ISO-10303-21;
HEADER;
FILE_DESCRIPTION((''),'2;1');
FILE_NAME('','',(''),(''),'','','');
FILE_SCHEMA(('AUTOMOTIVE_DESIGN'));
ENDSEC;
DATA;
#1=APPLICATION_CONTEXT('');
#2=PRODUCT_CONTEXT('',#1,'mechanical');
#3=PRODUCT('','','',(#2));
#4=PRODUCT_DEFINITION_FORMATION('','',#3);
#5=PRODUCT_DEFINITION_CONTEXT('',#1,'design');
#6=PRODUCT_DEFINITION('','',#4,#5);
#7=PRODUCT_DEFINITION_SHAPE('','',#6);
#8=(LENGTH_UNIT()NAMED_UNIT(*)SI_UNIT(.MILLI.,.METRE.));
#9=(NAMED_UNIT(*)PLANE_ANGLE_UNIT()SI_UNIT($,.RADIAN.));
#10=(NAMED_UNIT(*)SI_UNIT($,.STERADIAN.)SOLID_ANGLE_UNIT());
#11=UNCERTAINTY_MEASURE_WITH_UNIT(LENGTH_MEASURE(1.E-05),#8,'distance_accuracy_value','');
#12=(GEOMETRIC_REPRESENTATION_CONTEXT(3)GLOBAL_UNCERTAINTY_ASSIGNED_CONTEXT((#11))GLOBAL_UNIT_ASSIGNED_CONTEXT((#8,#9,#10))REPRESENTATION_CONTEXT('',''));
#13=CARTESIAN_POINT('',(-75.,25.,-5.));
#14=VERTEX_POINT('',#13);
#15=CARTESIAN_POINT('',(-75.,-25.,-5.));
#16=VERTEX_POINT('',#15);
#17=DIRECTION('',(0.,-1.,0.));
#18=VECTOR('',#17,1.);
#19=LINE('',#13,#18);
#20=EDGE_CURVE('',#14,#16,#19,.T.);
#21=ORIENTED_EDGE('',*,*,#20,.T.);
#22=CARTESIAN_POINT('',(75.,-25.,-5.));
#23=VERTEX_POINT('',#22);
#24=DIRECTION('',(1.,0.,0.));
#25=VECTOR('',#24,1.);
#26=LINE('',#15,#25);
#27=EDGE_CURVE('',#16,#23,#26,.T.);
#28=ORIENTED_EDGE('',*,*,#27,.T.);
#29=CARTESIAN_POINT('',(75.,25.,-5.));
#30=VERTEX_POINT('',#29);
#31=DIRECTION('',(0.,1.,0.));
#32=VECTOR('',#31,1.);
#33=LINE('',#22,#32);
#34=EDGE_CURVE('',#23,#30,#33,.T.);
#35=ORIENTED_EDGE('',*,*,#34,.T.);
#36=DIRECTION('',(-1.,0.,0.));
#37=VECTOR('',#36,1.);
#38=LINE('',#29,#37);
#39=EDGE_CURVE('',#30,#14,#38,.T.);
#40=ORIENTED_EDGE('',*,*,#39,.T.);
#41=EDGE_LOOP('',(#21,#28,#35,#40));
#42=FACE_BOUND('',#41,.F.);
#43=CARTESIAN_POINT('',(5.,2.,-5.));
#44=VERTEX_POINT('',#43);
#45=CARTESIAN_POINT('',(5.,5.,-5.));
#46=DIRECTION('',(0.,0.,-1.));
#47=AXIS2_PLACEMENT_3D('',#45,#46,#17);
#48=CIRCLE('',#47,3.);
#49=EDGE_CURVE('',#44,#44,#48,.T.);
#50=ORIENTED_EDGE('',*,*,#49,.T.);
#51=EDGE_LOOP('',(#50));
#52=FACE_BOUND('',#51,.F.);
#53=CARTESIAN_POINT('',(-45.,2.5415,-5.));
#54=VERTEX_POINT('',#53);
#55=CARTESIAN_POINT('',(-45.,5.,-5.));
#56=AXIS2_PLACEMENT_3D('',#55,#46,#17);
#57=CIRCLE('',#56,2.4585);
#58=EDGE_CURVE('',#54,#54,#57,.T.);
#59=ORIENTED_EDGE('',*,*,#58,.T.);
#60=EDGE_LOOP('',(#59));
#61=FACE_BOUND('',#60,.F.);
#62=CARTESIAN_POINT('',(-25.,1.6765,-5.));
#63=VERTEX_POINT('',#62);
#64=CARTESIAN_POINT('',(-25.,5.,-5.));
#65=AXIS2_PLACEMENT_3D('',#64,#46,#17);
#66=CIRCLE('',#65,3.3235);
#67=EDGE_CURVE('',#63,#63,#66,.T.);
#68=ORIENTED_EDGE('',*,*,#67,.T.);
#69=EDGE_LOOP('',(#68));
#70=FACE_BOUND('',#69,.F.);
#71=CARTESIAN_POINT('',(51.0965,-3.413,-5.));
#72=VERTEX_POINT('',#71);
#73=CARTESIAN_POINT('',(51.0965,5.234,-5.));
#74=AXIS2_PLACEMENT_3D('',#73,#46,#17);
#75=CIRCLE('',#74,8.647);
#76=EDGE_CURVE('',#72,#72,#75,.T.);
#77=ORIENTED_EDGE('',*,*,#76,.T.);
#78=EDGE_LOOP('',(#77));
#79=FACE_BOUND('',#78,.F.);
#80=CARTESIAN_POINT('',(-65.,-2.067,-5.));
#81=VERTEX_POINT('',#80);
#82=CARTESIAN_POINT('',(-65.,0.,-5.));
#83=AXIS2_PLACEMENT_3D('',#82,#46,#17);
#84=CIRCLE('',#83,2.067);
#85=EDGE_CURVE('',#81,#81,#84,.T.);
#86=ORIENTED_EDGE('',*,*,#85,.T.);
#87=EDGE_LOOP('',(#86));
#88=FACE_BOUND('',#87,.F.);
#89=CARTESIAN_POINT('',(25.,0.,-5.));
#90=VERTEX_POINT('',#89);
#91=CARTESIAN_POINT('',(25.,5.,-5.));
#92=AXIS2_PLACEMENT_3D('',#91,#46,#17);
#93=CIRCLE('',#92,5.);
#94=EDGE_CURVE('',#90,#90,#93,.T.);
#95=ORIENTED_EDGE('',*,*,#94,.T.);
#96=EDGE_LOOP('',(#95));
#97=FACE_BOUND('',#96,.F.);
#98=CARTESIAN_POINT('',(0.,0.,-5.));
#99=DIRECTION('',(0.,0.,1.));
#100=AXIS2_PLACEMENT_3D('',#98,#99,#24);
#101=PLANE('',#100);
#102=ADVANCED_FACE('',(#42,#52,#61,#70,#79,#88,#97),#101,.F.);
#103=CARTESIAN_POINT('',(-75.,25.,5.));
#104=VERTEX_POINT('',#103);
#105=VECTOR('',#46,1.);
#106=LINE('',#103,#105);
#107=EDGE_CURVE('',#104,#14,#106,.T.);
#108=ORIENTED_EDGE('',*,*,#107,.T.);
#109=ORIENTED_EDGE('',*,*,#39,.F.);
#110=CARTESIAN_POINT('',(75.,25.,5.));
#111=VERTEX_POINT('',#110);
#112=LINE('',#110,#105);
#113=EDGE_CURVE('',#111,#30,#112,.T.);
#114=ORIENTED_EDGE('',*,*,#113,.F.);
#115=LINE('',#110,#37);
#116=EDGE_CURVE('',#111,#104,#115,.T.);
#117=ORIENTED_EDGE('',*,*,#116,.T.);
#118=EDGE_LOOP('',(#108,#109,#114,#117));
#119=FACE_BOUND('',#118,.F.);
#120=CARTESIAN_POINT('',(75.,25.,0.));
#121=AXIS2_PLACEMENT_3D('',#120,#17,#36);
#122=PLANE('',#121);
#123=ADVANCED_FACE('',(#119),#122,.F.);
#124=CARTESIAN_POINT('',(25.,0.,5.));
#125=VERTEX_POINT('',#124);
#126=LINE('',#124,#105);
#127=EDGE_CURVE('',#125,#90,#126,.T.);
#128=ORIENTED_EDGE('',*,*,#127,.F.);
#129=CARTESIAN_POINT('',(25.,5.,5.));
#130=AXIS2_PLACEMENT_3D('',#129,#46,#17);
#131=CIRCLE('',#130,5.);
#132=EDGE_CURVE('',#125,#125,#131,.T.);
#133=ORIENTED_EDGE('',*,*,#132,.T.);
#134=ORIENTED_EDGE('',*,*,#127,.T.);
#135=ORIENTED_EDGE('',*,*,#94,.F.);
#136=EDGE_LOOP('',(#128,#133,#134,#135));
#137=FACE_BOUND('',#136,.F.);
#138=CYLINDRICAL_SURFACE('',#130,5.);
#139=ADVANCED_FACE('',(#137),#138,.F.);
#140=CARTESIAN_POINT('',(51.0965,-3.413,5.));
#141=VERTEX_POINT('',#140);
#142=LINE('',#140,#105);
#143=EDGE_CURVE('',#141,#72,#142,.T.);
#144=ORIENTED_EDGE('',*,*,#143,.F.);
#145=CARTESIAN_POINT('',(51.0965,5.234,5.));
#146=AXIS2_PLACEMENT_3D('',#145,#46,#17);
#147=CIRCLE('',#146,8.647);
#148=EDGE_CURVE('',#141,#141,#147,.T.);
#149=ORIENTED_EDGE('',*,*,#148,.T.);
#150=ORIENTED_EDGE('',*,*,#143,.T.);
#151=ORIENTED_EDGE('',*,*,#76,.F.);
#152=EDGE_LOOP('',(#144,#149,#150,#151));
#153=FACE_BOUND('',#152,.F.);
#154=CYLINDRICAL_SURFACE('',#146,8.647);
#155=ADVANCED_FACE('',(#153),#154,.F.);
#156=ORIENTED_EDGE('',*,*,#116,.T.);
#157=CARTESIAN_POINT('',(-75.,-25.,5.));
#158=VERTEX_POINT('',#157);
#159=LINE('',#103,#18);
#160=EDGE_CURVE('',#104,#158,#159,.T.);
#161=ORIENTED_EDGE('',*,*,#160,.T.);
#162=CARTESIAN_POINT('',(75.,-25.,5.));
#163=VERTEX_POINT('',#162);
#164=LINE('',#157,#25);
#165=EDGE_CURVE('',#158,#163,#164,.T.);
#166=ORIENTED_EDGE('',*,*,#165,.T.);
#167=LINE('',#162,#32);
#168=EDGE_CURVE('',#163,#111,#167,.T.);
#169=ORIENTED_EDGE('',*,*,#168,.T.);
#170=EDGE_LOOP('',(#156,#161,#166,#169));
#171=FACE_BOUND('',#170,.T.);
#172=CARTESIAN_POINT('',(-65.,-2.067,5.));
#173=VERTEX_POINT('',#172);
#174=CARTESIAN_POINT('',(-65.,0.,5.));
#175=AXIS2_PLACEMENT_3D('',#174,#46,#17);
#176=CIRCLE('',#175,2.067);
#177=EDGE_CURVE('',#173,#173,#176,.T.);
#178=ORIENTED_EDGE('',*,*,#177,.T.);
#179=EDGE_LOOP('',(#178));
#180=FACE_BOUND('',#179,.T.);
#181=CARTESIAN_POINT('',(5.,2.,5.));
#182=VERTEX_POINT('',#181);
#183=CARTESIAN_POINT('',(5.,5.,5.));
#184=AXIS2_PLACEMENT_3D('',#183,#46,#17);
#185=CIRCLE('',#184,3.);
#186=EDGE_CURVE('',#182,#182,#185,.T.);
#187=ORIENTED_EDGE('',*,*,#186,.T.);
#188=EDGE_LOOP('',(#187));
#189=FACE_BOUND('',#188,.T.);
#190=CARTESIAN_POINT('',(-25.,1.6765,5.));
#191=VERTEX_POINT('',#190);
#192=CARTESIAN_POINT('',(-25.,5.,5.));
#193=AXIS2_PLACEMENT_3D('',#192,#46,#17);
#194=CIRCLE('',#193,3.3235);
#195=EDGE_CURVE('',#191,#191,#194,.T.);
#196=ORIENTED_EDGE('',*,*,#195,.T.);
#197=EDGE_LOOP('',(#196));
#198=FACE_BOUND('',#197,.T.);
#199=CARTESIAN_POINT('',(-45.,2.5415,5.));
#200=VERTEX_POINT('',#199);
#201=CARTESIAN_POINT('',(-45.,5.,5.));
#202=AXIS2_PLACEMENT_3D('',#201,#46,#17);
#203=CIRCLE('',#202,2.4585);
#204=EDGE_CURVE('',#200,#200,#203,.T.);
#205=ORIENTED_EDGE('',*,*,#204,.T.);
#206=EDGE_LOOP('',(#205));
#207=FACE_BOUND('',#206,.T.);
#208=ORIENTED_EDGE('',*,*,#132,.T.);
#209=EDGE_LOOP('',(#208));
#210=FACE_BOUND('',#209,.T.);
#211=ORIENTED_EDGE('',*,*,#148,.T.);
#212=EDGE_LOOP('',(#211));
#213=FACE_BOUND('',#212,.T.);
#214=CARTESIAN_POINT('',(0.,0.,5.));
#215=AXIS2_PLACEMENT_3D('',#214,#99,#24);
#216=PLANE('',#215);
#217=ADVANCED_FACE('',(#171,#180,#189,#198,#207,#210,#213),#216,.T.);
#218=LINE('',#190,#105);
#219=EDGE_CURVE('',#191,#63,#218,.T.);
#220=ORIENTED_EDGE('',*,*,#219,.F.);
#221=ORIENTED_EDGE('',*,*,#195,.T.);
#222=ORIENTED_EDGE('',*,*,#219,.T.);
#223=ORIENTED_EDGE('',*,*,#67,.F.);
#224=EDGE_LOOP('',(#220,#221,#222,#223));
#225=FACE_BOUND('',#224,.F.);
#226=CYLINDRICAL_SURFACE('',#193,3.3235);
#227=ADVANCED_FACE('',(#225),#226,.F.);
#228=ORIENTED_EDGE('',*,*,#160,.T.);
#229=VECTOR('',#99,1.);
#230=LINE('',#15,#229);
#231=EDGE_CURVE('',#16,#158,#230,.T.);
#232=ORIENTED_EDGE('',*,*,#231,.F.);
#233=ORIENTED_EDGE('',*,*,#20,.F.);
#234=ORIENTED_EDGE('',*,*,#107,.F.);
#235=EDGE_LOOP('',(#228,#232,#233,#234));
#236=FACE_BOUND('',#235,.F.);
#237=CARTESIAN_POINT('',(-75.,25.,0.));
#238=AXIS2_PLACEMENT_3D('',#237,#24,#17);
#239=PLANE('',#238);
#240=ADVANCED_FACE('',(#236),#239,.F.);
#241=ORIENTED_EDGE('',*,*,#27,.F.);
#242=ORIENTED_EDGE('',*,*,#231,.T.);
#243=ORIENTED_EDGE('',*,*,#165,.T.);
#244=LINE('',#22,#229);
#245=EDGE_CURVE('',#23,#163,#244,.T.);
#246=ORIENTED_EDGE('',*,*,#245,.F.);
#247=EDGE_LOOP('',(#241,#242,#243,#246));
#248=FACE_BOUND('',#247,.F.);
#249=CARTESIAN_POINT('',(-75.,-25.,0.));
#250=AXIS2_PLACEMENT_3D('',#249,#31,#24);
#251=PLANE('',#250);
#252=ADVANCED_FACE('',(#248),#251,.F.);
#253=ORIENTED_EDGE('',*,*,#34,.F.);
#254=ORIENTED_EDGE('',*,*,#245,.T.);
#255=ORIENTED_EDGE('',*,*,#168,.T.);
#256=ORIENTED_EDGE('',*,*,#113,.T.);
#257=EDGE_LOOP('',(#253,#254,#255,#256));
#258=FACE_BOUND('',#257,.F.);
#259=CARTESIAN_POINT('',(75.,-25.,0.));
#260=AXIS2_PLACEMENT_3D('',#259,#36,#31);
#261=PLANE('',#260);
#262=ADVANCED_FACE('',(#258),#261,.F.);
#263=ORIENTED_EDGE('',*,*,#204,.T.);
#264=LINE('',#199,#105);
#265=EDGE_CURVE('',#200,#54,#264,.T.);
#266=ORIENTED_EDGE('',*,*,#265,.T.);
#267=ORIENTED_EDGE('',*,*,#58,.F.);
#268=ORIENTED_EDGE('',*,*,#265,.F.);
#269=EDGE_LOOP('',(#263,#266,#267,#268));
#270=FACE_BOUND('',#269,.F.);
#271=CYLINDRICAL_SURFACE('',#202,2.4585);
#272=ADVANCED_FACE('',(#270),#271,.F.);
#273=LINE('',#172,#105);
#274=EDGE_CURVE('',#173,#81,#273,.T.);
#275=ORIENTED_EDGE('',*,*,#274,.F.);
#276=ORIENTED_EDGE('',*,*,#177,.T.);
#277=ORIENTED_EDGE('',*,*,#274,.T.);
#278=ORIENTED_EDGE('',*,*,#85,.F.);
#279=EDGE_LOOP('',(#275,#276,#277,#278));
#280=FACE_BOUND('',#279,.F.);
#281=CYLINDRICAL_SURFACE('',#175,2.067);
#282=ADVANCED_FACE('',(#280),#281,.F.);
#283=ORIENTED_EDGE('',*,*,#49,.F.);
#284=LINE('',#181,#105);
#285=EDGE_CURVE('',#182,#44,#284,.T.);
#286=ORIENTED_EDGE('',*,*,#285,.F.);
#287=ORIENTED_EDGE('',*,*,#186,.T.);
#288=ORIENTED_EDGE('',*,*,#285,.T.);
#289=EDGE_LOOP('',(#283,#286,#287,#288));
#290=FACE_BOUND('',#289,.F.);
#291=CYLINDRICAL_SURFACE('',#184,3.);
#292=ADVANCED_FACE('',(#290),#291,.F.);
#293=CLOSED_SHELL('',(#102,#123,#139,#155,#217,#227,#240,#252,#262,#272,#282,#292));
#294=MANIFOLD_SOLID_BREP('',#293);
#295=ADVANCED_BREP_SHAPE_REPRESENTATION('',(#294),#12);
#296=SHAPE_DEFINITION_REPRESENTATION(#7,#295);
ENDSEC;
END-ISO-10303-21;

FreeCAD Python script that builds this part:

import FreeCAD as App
import Part
import Sketcher
from FreeCAD import Vector

doc = App.newDocument("Part")
body = doc.addObject("PartDesign::Body", "Body")

# Sketch on XY plane
sketch1 = body.newObject("Sketcher::SketchObject", "Sketch")
sketch1.AttachmentSupport = (doc.getObject("XY_Plane"), [""])
sketch1.MapMode = "FlatFace"
sketch1.addGeometry(Part.LineSegment(Vector(-75, 25, 0), Vector(-75, -25, 0)), False)
sketch1.addGeometry(Part.LineSegment(Vector(-75, -25, 0), Vector(75, -25, 0)), False)
sketch1.addGeometry(Part.LineSegment(Vector(75, -25, 0), Vector(75, 25, 0)), False)
sketch1.addGeometry(Part.LineSegment(Vector(75, 25, 0), Vector(-75, 25, 0)), False)
sketch1.addConstraint(Sketcher.Constraint("Coincident", 0, 2, 1, 1))
sketch1.addConstraint(Sketcher.Constraint("Coincident", 1, 2, 2, 1))
sketch1.addConstraint(Sketcher.Constraint("Coincident", 2, 2, 3, 1))
sketch1.addConstraint(Sketcher.Constraint("Coincident", 3, 2, 0, 1))
sketch1.addConstraint(Sketcher.Constraint("Vertical", 0))
sketch1.addConstraint(Sketcher.Constraint("Horizontal", 1))
sketch1.addConstraint(Sketcher.Constraint("Vertical", 2))
sketch1.addConstraint(Sketcher.Constraint("Horizontal", 3))
sketch1.addConstraint(Sketcher.Constraint("Symmetric", 0, 2, 2, 2, -1, 1))
sketch1.addConstraint(Sketcher.Constraint("DistanceX", 1, 1, 1, 2, 150.0))
sketch1.addConstraint(Sketcher.Constraint("DistanceY", 0, 2, 0, 1, 50.0))
pad1 = body.newObject("PartDesign::Pad", "Pad")
pad1.Profile = sketch1
pad1.Length = 10
pad1.Midplane = True

# Sketch on XY plane
sketch2 = body.newObject("Sketcher::SketchObject", "Sketch001")
sketch2.AttachmentSupport = (doc.getObject("XY_Plane"), [""])
sketch2.MapMode = "FlatFace"
sketch2.AttachmentOffset = App.Placement(Vector(0, 0, 5), App.Rotation())
sketch2.addGeometry(Part.Circle(Vector(-65, 0, 0), Vector(0, 0, 1), 2.067), False)
sketch2.addConstraint(Sketcher.Constraint("PointOnObject", 0, 3, -1))
sketch2.addConstraint(Sketcher.Constraint("Diameter", 0, 4.134))
sketch2.addConstraint(Sketcher.Constraint("DistanceX", 0, 3, -1, 1, 65.0))
doc.recompute()
hole = body.newObject("PartDesign::Hole", "Hole")
hole.Profile = sketch2
hole.ThreadType = "None"
hole.Diameter = 4.134
hole.DepthType = "Dimension"
hole.Depth = 14.2
hole.DrillPoint = "Angled"
hole.DrillPointAngle = 118

# Sketch on XY plane
sketch3 = body.newObject("Sketcher::SketchObject", "Sketch002")
sketch3.AttachmentSupport = (doc.getObject("XY_Plane"), [""])
sketch3.MapMode = "FlatFace"
sketch3.AttachmentOffset = App.Placement(Vector(0, 0, 5), App.Rotation())
sketch3.addGeometry(Part.Circle(Vector(-45, 5, 0), Vector(0, 0, 1), 2.4585), False)
sketch3.addConstraint(Sketcher.Constraint("Diameter", 0, 4.917))
sketch3.addConstraint(Sketcher.Constraint("DistanceX", 0, 3, -1, 1, 45.0))
sketch3.addConstraint(Sketcher.Constraint("DistanceY", -1, 1, 0, 3, 5.0))
doc.recompute()
hole2 = body.newObject("PartDesign::Hole", "Hole001")
hole2.Profile = sketch3
hole2.ThreadType = "None"
hole2.Diameter = 4.917
hole2.DepthType = "Dimension"
hole2.Depth = 17.1
hole2.DrillPoint = "Angled"
hole2.DrillPointAngle = 118

# Sketch on XY plane
sketch4 = body.newObject("Sketcher::SketchObject", "Sketch003")
sketch4.AttachmentSupport = (doc.getObject("XY_Plane"), [""])
sketch4.MapMode = "FlatFace"
sketch4.AttachmentOffset = App.Placement(Vector(0, 0, 5), App.Rotation())
sketch4.addGeometry(Part.Circle(Vector(-25, 5, 0), Vector(0, 0, 1), 3.3235), False)
sketch4.addConstraint(Sketcher.Constraint("Diameter", 0, 6.647))
sketch4.addConstraint(Sketcher.Constraint("DistanceX", 0, 3, -1, 1, 25.0))
sketch4.addConstraint(Sketcher.Constraint("DistanceY", -1, 1, 0, 3, 5.0))
doc.recompute()
hole3 = body.newObject("PartDesign::Hole", "Hole002")
hole3.Profile = sketch4
hole3.ThreadType = "None"
hole3.Diameter = 6.647
hole3.DepthType = "Dimension"
hole3.Depth = 22.2
hole3.DrillPoint = "Angled"
hole3.DrillPointAngle = 118

# Sketch on XY plane
sketch5 = body.newObject("Sketcher::SketchObject", "Sketch004")
sketch5.AttachmentSupport = (doc.getObject("XY_Plane"), [""])
sketch5.MapMode = "FlatFace"
sketch5.AttachmentOffset = App.Placement(Vector(0, 0, 5), App.Rotation())
sketch5.addGeometry(Part.Circle(Vector(5, 5, 0), Vector(0, 0, 1), 3), False)
sketch5.addConstraint(Sketcher.Constraint("Diameter", 0, 6.0))
sketch5.addConstraint(Sketcher.Constraint("DistanceX", -1, 1, 0, 3, 5.0))
sketch5.addConstraint(Sketcher.Constraint("DistanceY", -1, 1, 0, 3, 5.0))
doc.recompute()
hole4 = body.newObject("PartDesign::Hole", "Hole003")
hole4.Profile = sketch5
hole4.ThreadType = "None"
hole4.Diameter = 6
hole4.DepthType = "Dimension"
hole4.Depth = 14.2
hole4.DrillPoint = "Angled"
hole4.DrillPointAngle = 118

# Sketch on XY plane
sketch6 = body.newObject("Sketcher::SketchObject", "Sketch005")
sketch6.AttachmentSupport = (doc.getObject("XY_Plane"), [""])
sketch6.MapMode = "FlatFace"
sketch6.AttachmentOffset = App.Placement(Vector(0, 0, 5), App.Rotation())
sketch6.addGeometry(Part.Circle(Vector(25, 5, 0), Vector(0, 0, 1), 5), False)
sketch6.addConstraint(Sketcher.Constraint("Diameter", 0, 10.0))
sketch6.addConstraint(Sketcher.Constraint("DistanceX", -1, 1, 0, 3, 25.0))
sketch6.addConstraint(Sketcher.Constraint("DistanceY", -1, 1, 0, 3, 5.0))
doc.recompute()
hole5 = body.newObject("PartDesign::Hole", "Hole004")
hole5.Profile = sketch6
hole5.ThreadType = "None"
hole5.Diameter = 10
hole5.DepthType = "Dimension"
hole5.Depth = 14.2
hole5.DrillPoint = "Angled"
hole5.DrillPointAngle = 118

# Sketch on XY plane
sketch7 = body.newObject("Sketcher::SketchObject", "Sketch006")
sketch7.AttachmentSupport = (doc.getObject("XY_Plane"), [""])
sketch7.MapMode = "FlatFace"
sketch7.AttachmentOffset = App.Placement(Vector(0, 0, 5), App.Rotation())
sketch7.addGeometry(Part.Circle(Vector(51.0965, 5.234, 0), Vector(0, 0, 1), 8.647), False)
sketch7.addConstraint(Sketcher.Constraint("Diameter", 0, 17.294))
sketch7.addConstraint(Sketcher.Constraint("DistanceY", -1, 1, 0, 3, 5.234))
sketch7.addConstraint(Sketcher.Constraint("DistanceX", -1, 1, 0, 3, 51.0965))
doc.recompute()
hole6 = body.newObject("PartDesign::Hole", "Hole005")
hole6.Profile = sketch7
hole6.ThreadType = "None"
hole6.Diameter = 17.294
hole6.DepthType = "Dimension"
hole6.Depth = 51.2
hole6.DrillPoint = "Angled"
hole6.DrillPointAngle = 118

doc.recompute()
